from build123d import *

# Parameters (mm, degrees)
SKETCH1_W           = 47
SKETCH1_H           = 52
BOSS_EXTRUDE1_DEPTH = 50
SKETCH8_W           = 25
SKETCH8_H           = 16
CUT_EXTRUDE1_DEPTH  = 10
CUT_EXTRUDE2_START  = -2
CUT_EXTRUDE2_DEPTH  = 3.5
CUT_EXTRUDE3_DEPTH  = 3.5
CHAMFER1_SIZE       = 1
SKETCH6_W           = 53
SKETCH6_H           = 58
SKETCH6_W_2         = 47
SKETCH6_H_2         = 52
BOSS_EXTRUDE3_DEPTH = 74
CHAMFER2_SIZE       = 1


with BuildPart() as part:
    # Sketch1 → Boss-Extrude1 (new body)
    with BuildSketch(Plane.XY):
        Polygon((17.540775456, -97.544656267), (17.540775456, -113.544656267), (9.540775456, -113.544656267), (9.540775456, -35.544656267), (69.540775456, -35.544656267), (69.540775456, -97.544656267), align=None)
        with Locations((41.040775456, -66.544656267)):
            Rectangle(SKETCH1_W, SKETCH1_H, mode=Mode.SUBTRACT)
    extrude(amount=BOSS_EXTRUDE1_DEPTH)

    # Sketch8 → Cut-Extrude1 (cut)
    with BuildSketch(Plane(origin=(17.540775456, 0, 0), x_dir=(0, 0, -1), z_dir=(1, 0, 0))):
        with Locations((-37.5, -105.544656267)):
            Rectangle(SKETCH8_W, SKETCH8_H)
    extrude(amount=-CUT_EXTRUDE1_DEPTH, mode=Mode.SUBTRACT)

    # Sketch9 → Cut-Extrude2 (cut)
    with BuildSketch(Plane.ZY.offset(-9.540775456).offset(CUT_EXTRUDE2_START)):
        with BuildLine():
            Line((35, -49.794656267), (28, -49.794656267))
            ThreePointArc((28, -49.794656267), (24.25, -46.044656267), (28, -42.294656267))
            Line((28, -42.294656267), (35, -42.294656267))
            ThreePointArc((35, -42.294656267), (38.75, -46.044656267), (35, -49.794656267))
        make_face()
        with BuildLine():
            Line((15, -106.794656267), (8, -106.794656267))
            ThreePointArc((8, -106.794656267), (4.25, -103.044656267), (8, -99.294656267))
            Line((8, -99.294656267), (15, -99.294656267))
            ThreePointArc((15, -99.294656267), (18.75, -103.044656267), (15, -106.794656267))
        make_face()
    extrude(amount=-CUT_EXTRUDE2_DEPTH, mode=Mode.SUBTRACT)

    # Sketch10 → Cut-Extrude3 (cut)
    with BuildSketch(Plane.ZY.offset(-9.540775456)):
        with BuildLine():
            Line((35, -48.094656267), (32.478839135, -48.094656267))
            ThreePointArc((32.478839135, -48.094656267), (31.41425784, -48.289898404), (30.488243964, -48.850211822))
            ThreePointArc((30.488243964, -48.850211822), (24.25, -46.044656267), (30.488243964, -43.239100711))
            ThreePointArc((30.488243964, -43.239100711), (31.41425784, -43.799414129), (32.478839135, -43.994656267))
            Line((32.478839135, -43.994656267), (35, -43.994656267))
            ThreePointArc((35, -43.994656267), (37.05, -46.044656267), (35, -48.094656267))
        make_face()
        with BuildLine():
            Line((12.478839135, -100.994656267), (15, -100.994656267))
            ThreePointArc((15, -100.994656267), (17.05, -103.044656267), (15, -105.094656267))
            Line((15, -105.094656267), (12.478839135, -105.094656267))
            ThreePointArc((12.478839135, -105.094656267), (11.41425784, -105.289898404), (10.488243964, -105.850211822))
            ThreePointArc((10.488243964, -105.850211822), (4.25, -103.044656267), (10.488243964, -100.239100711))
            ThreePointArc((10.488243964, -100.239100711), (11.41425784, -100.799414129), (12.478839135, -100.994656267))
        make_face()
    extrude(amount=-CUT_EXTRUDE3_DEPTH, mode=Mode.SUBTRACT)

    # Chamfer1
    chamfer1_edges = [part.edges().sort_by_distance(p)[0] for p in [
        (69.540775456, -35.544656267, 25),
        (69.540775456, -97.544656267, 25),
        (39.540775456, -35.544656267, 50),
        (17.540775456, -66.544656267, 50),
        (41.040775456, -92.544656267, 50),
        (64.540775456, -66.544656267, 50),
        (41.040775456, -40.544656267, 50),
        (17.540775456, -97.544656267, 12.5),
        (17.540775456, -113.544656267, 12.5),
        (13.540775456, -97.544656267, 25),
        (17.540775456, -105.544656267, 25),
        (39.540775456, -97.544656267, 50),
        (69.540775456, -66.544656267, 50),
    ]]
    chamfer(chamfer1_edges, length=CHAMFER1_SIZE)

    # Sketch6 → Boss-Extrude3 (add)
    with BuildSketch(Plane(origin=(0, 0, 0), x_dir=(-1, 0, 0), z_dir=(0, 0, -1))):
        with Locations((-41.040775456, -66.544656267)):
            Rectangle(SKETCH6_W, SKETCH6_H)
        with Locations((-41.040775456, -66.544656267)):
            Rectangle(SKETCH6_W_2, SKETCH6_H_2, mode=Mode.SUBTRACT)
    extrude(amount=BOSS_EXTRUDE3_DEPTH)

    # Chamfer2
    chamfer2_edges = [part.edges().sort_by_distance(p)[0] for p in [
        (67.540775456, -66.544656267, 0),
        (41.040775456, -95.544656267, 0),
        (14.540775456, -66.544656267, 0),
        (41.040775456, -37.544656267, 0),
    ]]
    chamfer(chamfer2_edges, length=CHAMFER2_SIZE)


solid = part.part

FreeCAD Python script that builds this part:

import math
import FreeCAD as App
import Part
import Sketcher

V = App.Vector


def edges_at(feature, points):
    """Names of the edges that pass closest to the given points."""
    edges = feature.Shape.Edges
    near = lambda p: min(range(len(edges)), key=lambda i: edges[i].distToShape(Part.Vertex(*p))[0])
    return sorted({f"Edge{near(p) + 1}" for p in points})

doc = App.newDocument("Part")
body = doc.addObject("PartDesign::Body", "Body")

# Sketch on XY plane
sketch1 = body.newObject("Sketcher::SketchObject", "Sketch")
sketch1.AttachmentSupport = (doc.getObject("XY_Plane"), [""])
sketch1.MapMode = "FlatFace"
sketch1.addGeometry(Part.LineSegment(V(18, -114, 0), V(18, -98, 0)), False)
sketch1.addGeometry(Part.LineSegment(V(18, -98, 0), V(70, -98, 0)), False)
sketch1.addGeometry(Part.LineSegment(V(70, -98, 0), V(70, -36, 0)), False)
sketch1.addGeometry(Part.LineSegment(V(70, -36, 0), V(10, -36, 0)), False)
sketch1.addGeometry(Part.LineSegment(V(10, -36, 0), V(10, -114, 0)), False)
sketch1.addGeometry(Part.LineSegment(V(10, -114, 0), V(18, -114, 0)), False)
sketch1.addGeometry(Part.LineSegment(V(18, -93, 0), V(18, -41, 0)), False)
sketch1.addGeometry(Part.LineSegment(V(18, -41, 0), V(65, -41, 0)), False)
sketch1.addGeometry(Part.LineSegment(V(65, -41, 0), V(65, -93, 0)), False)
sketch1.addGeometry(Part.LineSegment(V(65, -93, 0), V(18, -93, 0)), False)
sketch1.addConstraint(Sketcher.Constraint("Coincident", 0, 2, 1, 1))
sketch1.addConstraint(Sketcher.Constraint("Coincident", 1, 2, 2, 1))
sketch1.addConstraint(Sketcher.Constraint("Coincident", 2, 2, 3, 1))
sketch1.addConstraint(Sketcher.Constraint("Coincident", 3, 2, 4, 1))
sketch1.addConstraint(Sketcher.Constraint("Coincident", 4, 2, 5, 1))
sketch1.addConstraint(Sketcher.Constraint("Coincident", 5, 2, 0, 1))
sketch1.addConstraint(Sketcher.Constraint("Coincident", 6, 2, 7, 1))
sketch1.addConstraint(Sketcher.Constraint("Coincident", 7, 2, 8, 1))
sketch1.addConstraint(Sketcher.Constraint("Coincident", 8, 2, 9, 1))
sketch1.addConstraint(Sketcher.Constraint("Coincident", 9, 2, 6, 1))
sketch1.addConstraint(Sketcher.Constraint("Vertical", 0))
sketch1.addConstraint(Sketcher.Constraint("Horizontal", 1))
sketch1.addConstraint(Sketcher.Constraint("Vertical", 2))
sketch1.addConstraint(Sketcher.Constraint("Horizontal", 3))
sketch1.addConstraint(Sketcher.Constraint("Vertical", 4))
sketch1.addConstraint(Sketcher.Constraint("Horizontal", 5))
sketch1.addConstraint(Sketcher.Constraint("Vertical", 6))
sketch1.addConstraint(Sketcher.Constraint("Horizontal", 7))
sketch1.addConstraint(Sketcher.Constraint("Vertical", 8))
sketch1.addConstraint(Sketcher.Constraint("Horizontal", 9))
sketch1.addConstraint(Sketcher.Constraint("Vertical", 5, 2, 6, 2))
sketch1.addConstraint(Sketcher.Constraint("Equal", 1, 6))
sketch1.addConstraint(Sketcher.Constraint("DistanceX", 1, 1, 1, 2, 52.0))
sketch1.addConstraint(Sketcher.Constraint("DistanceX", 3, 2, 3, 1, 60.0))
sketch1.addConstraint(Sketcher.Constraint("DistanceX", 7, 1, 7, 2, 47.0))
sketch1.addConstraint(Sketcher.Constraint("DistanceY", 0, 1, 0, 2, 16.0))
sketch1.addConstraint(Sketcher.Constraint("DistanceY", 2, 1, 2, 2, 62.0))
sketch1.addConstraint(Sketcher.Constraint("DistanceY", 6, 2, 3, 2, 5.0))
sketch1.addConstraint(Sketcher.Constraint("DistanceX", -1, 1, 0, 2, 17.540775))
sketch1.addConstraint(Sketcher.Constraint("DistanceY", 0, 2, -1, 1, 97.544656))
pad1 = body.newObject("PartDesign::Pad", "Pad")
pad1.Profile = sketch1
pad1.Length = 50

# Sketch on YZ plane
sketch2 = body.newObject("Sketcher::SketchObject", "Sketch001")
sketch2.AttachmentSupport = (doc.getObject("YZ_Plane"), [""])
sketch2.MapMode = "FlatFace"
sketch2.AttachmentOffset = App.Placement(V(0, 0, 17.540775), App.Rotation())
sketch2.addGeometry(Part.LineSegment(V(-98, 50, 0), V(-114, 50, 0)), False)
sketch2.addGeometry(Part.LineSegment(V(-114, 50, 0), V(-114, 25, 0)), False)
sketch2.addGeometry(Part.LineSegment(V(-114, 25, 0), V(-98, 25, 0)), False)
sketch2.addGeometry(Part.LineSegment(V(-98, 25, 0), V(-98, 50, 0)), False)
sketch2.addConstraint(Sketcher.Constraint("Coincident", 0, 2, 1, 1))
sketch2.addConstraint(Sketcher.Constraint("Coincident", 1, 2, 2, 1))
sketch2.addConstraint(Sketcher.Constraint("Coincident", 2, 2, 3, 1))
sketch2.addConstraint(Sketcher.Constraint("Coincident", 3, 2, 0, 1))
sketch2.addConstraint(Sketcher.Constraint("Horizontal", 0))
sketch2.addConstraint(Sketcher.Constraint("Vertical", 1))
sketch2.addConstraint(Sketcher.Constraint("Horizontal", 2))
sketch2.addConstraint(Sketcher.Constraint("Vertical", 3))
sketch2.addConstraint(Sketcher.Constraint("DistanceX", 0, 2, 0, 1, 16.0))
sketch2.addConstraint(Sketcher.Constraint("DistanceY", 1, 2, 1, 1, 25.0))
sketch2.addConstraint(Sketcher.Constraint("DistanceY", -1, 1, 0, 2, 50.0))
sketch2.addConstraint(Sketcher.Constraint("DistanceX", 0, 2, -1, 1, 113.544656))
pocket1 = body.newObject("PartDesign::Pocket", "Pocket")
pocket1.Profile = sketch2
pocket1.Length = 10

# Sketch on YZ plane
sketch3 = body.newObject("Sketcher::SketchObject", "Sketch002")
sketch3.AttachmentSupport = (doc.getObject("YZ_Plane"), [""])
sketch3.MapMode = "FlatFace"
sketch3.AttachmentOffset = App.Placement(V(0, 0, 11.540775), App.Rotation())
sketch3.addGeometry(Part.LineSegment(V(-49.8, 28, 0), V(-49.8, 35, 0)), False)
sketch3.addGeometry(Part.ArcOfCircle(Part.Circle(V(-46, 35, 0), V(0, 0, 1), 3.8), math.radians(0), math.radians(180)), False)
sketch3.addGeometry(Part.LineSegment(V(-42.3, 35, 0), V(-42.3, 28, 0)), False)
sketch3.addGeometry(Part.ArcOfCircle(Part.Circle(V(-46, 28, 0), V(0, 0, 1), 3.8), math.radians(180), math.radians(360)), False)
sketch3.addGeometry(Part.LineSegment(V(-106.8, 8, 0), V(-106.8, 15, 0)), False)
sketch3.addGeometry(Part.ArcOfCircle(Part.Circle(V(-103, 15, 0), V(0, 0, 1), 3.8), math.radians(0), math.radians(180)), False)
sketch3.addGeometry(Part.LineSegment(V(-99.3, 15, 0), V(-99.3, 8, 0)), False)
sketch3.addGeometry(Part.ArcOfCircle(Part.Circle(V(-103, 8, 0), V(0, 0, 1), 3.8), math.radians(180), math.radians(360)), False)
sketch3.addConstraint(Sketcher.Constraint("Tangent", 0, 2, 1, 2))
sketch3.addConstraint(Sketcher.Constraint("Tangent", 1, 1, 2, 1))
sketch3.addConstraint(Sketcher.Constraint("Tangent", 2, 2, 3, 2))
sketch3.addConstraint(Sketcher.Constraint("Tangent", 3, 1, 0, 1))
sketch3.addConstraint(Sketcher.Constraint("Tangent", 4, 2, 5, 2))
sketch3.addConstraint(Sketcher.Constraint("Tangent", 5, 1, 6, 1))
sketch3.addConstraint(Sketcher.Constraint("Tangent", 6, 2, 7, 2))
sketch3.addConstraint(Sketcher.Constraint("Tangent", 7, 1, 4, 1))
sketch3.addConstraint(Sketcher.Constraint("Vertical", 0))
sketch3.addConstraint(Sketcher.Constraint("Vertical", 2))
sketch3.addConstraint(Sketcher.Constraint("Vertical", 4))
sketch3.addConstraint(Sketcher.Constraint("Vertical", 6))
sketch3.addConstraint(Sketcher.Constraint("Equal", 3, 5))
sketch3.addConstraint(Sketcher.Constraint("Equal", 2, 4))
sketch3.addConstraint(Sketcher.Constraint("DistanceY", 0, 1, 0, 2, 7.0))
sketch3.addConstraint(Sketcher.Constraint("Radius", 1, 3.75))
sketch3.addConstraint(Sketcher.Constraint("DistanceY", -1, 1, 1, 3, 35.0))
sketch3.addConstraint(Sketcher.Constraint("DistanceY", -1, 1, 5, 3, 15.0))
sketch3.addConstraint(Sketcher.Constraint("DistanceX", 5, 3, 3, 3, 57.0))
sketch3.addConstraint(Sketcher.Constraint("DistanceX", 1, 3, -1, 1, 46.044656))
pocket2 = body.newObject("PartDesign::Pocket", "Pocket001")
pocket2.Profile = sketch3
pocket2.Length = 3.5
pocket2.Reversed = True

# Sketch on YZ plane
sketch4 = body.newObject("Sketcher::SketchObject", "Sketch003")
sketch4.AttachmentSupport = (doc.getObject("YZ_Plane"), [""])
sketch4.MapMode = "FlatFace"
sketch4.AttachmentOffset = App.Placement(V(0, 0, 9.540775), App.Rotation())
sketch4.addGeometry(Part.LineSegment(V(-48.1, 32.5, 0), V(-48.1, 35, 0)), False)
sketch4.addGeometry(Part.ArcOfCircle(Part.Circle(V(-46, 35, 0), V(0, 0, 1), 2), math.radians(0), math.radians(180)), False)
sketch4.addGeometry(Part.LineSegment(V(-44, 35, 0), V(-44, 32.5, 0)), False)
sketch4.addGeometry(Part.ArcOfCircle(Part.Circle(V(-41, 32.5, 0), V(0, 0, 1), 3), math.radians(-180), math.radians(-138)), False)
sketch4.addGeometry(Part.ArcOfCircle(Part.Circle(V(-46, 28, 0), V(0, 0, 1), 3.8), math.radians(138), math.radians(402)), False)
sketch4.addGeometry(Part.ArcOfCircle(Part.Circle(V(-51.1, 32.5, 0), V(0, 0, 1), 3), math.radians(-42), math.radians(0)), False)
sketch4.addGeometry(Part.LineSegment(V(-101, 15, 0), V(-101, 12.5, 0)), False)
sketch4.addGeometry(Part.ArcOfCircle(Part.Circle(V(-98, 12.5, 0), V(0, 0, 1), 3), math.radians(-180), math.radians(-138)), False)
sketch4.addGeometry(Part.ArcOfCircle(Part.Circle(V(-103, 8, 0), V(0, 0, 1), 3.8), math.radians(138), math.radians(402)), False)
sketch4.addGeometry(Part.ArcOfCircle(Part.Circle(V(-108.1, 12.5, 0), V(0, 0, 1), 3), math.radians(-42), math.radians(0)), False)
sketch4.addGeometry(Part.LineSegment(V(-105.1, 12.5, 0), V(-105.1, 15, 0)), False)
sketch4.addGeometry(Part.ArcOfCircle(Part.Circle(V(-103, 15, 0), V(0, 0, 1), 2), math.radians(0), math.radians(180)), False)
sketch4.addConstraint(Sketcher.Constraint("Tangent", 0, 2, 1, 2))
sketch4.addConstraint(Sketcher.Constraint("Tangent", 1, 1, 2, 1))
sketch4.addConstraint(Sketcher.Constraint("Tangent", 2, 2, 3, 1))
sketch4.addConstraint(Sketcher.Constraint("Tangent", 3, 2, 4, 2))
sketch4.addConstraint(Sketcher.Constraint("Tangent", 4, 1, 5, 1))
sketch4.addConstraint(Sketcher.Constraint("Tangent", 5, 2, 0, 1))
sketch4.addConstraint(Sketcher.Constraint("Tangent", 6, 2, 7, 1))
sketch4.addConstraint(Sketcher.Constraint("Tangent", 7, 2, 8, 2))
sketch4.addConstraint(Sketcher.Constraint("Tangent", 8, 1, 9, 1))
sketch4.addConstraint(Sketcher.Constraint("Tangent", 9, 2, 10, 1))
sketch4.addConstraint(Sketcher.Constraint("Tangent", 10, 2, 11, 2))
sketch4.addConstraint(Sketcher.Constraint("Tangent", 11, 1, 6, 1))
sketch4.addConstraint(Sketcher.Constraint("Vertical", 0))
sketch4.addConstraint(Sketcher.Constraint("Vertical", 2))
sketch4.addConstraint(Sketcher.Constraint("Vertical", 6))
sketch4.addConstraint(Sketcher.Constraint("Vertical", 10))
sketch4.addConstraint(Sketcher.Constraint("Equal", 3, 5))
sketch4.addConstraint(Sketcher.Constraint("Equal", 5, 7))
sketch4.addConstraint(Sketcher.Constraint("Equal", 4, 8))
sketch4.addConstraint(Sketcher.Constraint("Equal", 7, 9))
sketch4.addConstraint(Sketcher.Constraint("Equal", 1, 11))
sketch4.addConstraint(Sketcher.Constraint("Horizontal", 3, 3, 5, 3))
sketch4.addConstraint(Sketcher.Constraint("Horizontal", 7, 3, 9, 3))
sketch4.addConstraint(Sketcher.Constraint("Equal", 2, 6))
sketch4.addConstraint(Sketcher.Constraint("Radius", 3, 3.0))
sketch4.addConstraint(Sketcher.Constraint("Radius", 1, 2.05))
sketch4.addConstraint(Sketcher.Constraint("Radius", 4, 3.75))
sketch4.addConstraint(Sketcher.Constraint("DistanceY", -1, 1, 1, 3, 35.0))
sketch4.addConstraint(Sketcher.Constraint("DistanceY", -1, 1, 4, 3, 28.0))
sketch4.addConstraint(Sketcher.Constraint("DistanceY", -1, 1, 8, 3, 8.0))
sketch4.addConstraint(Sketcher.Constraint("DistanceX", 7, 3, 3, 3, 57.0))
sketch4.addConstraint(Sketcher.Constraint("DistanceX", 3, 2, -1, 1, 43.239101))
pocket3 = body.newObject("PartDesign::Pocket", "Pocket002")
pocket3.Profile = sketch4
pocket3.Length = 3.5
pocket3.Reversed = True
doc.recompute()

chamfer = body.newObject("PartDesign::Chamfer", "Chamfer")
chamfer.Base = (pocket3, edges_at(pocket3, [
    (69.541, -35.545, 25),
    (69.541, -97.545, 25),
    (39.541, -35.545, 50),
    (17.541, -66.545, 50),
    (41.041, -92.545, 50),
    (64.541, -66.545, 50),
    (41.041, -40.545, 50),
    (17.541, -97.545, 12.5),
    (17.541, -113.545, 12.5),
    (13.541, -97.545, 25),
    (17.541, -105.545, 25),
    (39.541, -97.545, 50),
    (69.541, -66.545, 50),
]))
chamfer.Size = 1

# Sketch on XY plane
sketch5 = body.newObject("Sketcher::SketchObject", "Sketch004")
sketch5.AttachmentSupport = (doc.getObject("XY_Plane"), [""])
sketch5.MapMode = "FlatFace"
sketch5.addGeometry(Part.LineSegment(V(68, -38, 0), V(68, -96, 0)), False)
sketch5.addGeometry(Part.LineSegment(V(68, -96, 0), V(15, -96, 0)), False)
sketch5.addGeometry(Part.LineSegment(V(15, -96, 0), V(15, -38, 0)), False)
sketch5.addGeometry(Part.LineSegment(V(15, -38, 0), V(68, -38, 0)), False)
sketch5.addGeometry(Part.LineSegment(V(18, -93, 0), V(65, -93, 0)), False)
sketch5.addGeometry(Part.LineSegment(V(65, -93, 0), V(65, -41, 0)), False)
sketch5.addGeometry(Part.LineSegment(V(65, -41, 0), V(18, -41, 0)), False)
sketch5.addGeometry(Part.LineSegment(V(18, -41, 0), V(18, -93, 0)), False)
sketch5.addConstraint(Sketcher.Constraint("Coincident", 0, 2, 1, 1))
sketch5.addConstraint(Sketcher.Constraint("Coincident", 1, 2, 2, 1))
sketch5.addConstraint(Sketcher.Constraint("Coincident", 2, 2, 3, 1))
sketch5.addConstraint(Sketcher.Constraint("Coincident", 3, 2, 0, 1))
sketch5.addConstraint(Sketcher.Constraint("Coincident", 4, 2, 5, 1))
sketch5.addConstraint(Sketcher.Constraint("Coincident", 5, 2, 6, 1))
sketch5.addConstraint(Sketcher.Constraint("Coincident", 6, 2, 7, 1))
sketch5.addConstraint(Sketcher.Constraint("Coincident", 7, 2, 4, 1))
sketch5.addConstraint(Sketcher.Constraint("Vertical", 0))
sketch5.addConstraint(Sketcher.Constraint("Horizontal", 1))
sketch5.addConstraint(Sketcher.Constraint("Vertical", 2))
sketch5.addConstraint(Sketcher.Constraint("Horizontal", 3))
sketch5.addConstraint(Sketcher.Constraint("Horizontal", 4))
sketch5.addConstraint(Sketcher.Constraint("Vertical", 5))
sketch5.addConstraint(Sketcher.Constraint("Horizontal", 6))
sketch5.addConstraint(Sketcher.Constraint("Vertical", 7))
sketch5.addConstraint(Sketcher.Constraint("DistanceX", 1, 2, 1, 1, 53.0))
sketch5.addConstraint(Sketcher.Constraint("DistanceX", 4, 1, 4, 2, 47.0))
sketch5.addConstraint(Sketcher.Constraint("DistanceY", 0, 2, 0, 1, 58.0))
sketch5.addConstraint(Sketcher.Constraint("DistanceY", 5, 1, 5, 2, 52.0))
sketch5.addConstraint(Sketcher.Constraint("DistanceX", 4, 2, 0, 2, 3.0))
sketch5.addConstraint(Sketcher.Constraint("DistanceY", 0, 2, 4, 2, 3.0))
sketch5.addConstraint(Sketcher.Constraint("DistanceX", -1, 1, 0, 2, 67.540775))
sketch5.addConstraint(Sketcher.Constraint("DistanceY", 0, 2, -1, 1, 95.544656))
pad2 = body.newObject("PartDesign::Pad", "Pad001")
pad2.Profile = sketch5
pad2.Length = 74
pad2.Reversed = True
doc.recompute()

chamfer2 = body.newObject("PartDesign::Chamfer", "Chamfer001")
chamfer2.Base = (pad2, edges_at(pad2, [
    (67.541, -66.545, 0),
    (41.041, -95.545, 0),
    (14.541, -66.545, 0),
    (41.041, -37.545, 0),
]))
chamfer2.Size = 1

doc.recompute()
